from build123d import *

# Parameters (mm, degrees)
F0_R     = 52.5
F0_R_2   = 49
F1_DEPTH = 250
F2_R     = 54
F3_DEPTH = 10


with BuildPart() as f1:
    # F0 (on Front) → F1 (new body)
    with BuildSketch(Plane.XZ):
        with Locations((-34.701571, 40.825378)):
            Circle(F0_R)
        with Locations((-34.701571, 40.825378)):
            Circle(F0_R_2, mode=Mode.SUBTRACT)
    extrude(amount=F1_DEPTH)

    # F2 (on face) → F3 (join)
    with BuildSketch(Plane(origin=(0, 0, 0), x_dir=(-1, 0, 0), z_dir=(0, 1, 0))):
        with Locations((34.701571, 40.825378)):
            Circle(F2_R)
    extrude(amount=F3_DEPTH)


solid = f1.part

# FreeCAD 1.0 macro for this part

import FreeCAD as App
import Part
import Sketcher
from FreeCAD import Vector

doc = App.newDocument("Part")
body = doc.addObject("PartDesign::Body", "Body")

# Sketch on XZ plane
sketch1 = body.newObject("Sketcher::SketchObject", "Sketch")
sketch1.AttachmentSupport = (doc.getObject("XZ_Plane"), [""])
sketch1.MapMode = "FlatFace"
sketch1.addGeometry(Part.Circle(Vector(-35, 41, 0), Vector(0, 0, 1), 52), False)
sketch1.addGeometry(Part.Circle(Vector(-35, 41, 0), Vector(0, 0, 1), 49), False)
sketch1.addConstraint(Sketcher.Constraint("Coincident", 1, 3, 0, 3))
sketch1.addConstraint(Sketcher.Constraint("Diameter", 0, 105.0))
sketch1.addConstraint(Sketcher.Constraint("Diameter", 1, 98.0))
sketch1.addConstraint(Sketcher.Constraint("DistanceX", 0, 3, -1, 1, 34.701571))
sketch1.addConstraint(Sketcher.Constraint("DistanceY", -1, 1, 0, 3, 40.825378))
pad1 = body.newObject("PartDesign::Pad", "Pad")
pad1.Profile = sketch1
pad1.Length = 250

# Sketch on XZ plane
sketch2 = body.newObject("Sketcher::SketchObject", "Sketch001")
sketch2.AttachmentSupport = (doc.getObject("XZ_Plane"), [""])
sketch2.MapMode = "FlatFace"
sketch2.addGeometry(Part.Circle(Vector(-35, 41, 0), Vector(0, 0, 1), 54), False)
sketch2.addConstraint(Sketcher.Constraint("Diameter", 0, 108.0))
sketch2.addConstraint(Sketcher.Constraint("DistanceX", 0, 3, -1, 1, 34.701571))
sketch2.addConstraint(Sketcher.Constraint("DistanceY", -1, 1, 0, 3, 40.825378))
pad2 = body.newObject("PartDesign::Pad", "Pad001")
pad2.Profile = sketch2
pad2.Length = 10
pad2.Reversed = True

doc.recompute()
